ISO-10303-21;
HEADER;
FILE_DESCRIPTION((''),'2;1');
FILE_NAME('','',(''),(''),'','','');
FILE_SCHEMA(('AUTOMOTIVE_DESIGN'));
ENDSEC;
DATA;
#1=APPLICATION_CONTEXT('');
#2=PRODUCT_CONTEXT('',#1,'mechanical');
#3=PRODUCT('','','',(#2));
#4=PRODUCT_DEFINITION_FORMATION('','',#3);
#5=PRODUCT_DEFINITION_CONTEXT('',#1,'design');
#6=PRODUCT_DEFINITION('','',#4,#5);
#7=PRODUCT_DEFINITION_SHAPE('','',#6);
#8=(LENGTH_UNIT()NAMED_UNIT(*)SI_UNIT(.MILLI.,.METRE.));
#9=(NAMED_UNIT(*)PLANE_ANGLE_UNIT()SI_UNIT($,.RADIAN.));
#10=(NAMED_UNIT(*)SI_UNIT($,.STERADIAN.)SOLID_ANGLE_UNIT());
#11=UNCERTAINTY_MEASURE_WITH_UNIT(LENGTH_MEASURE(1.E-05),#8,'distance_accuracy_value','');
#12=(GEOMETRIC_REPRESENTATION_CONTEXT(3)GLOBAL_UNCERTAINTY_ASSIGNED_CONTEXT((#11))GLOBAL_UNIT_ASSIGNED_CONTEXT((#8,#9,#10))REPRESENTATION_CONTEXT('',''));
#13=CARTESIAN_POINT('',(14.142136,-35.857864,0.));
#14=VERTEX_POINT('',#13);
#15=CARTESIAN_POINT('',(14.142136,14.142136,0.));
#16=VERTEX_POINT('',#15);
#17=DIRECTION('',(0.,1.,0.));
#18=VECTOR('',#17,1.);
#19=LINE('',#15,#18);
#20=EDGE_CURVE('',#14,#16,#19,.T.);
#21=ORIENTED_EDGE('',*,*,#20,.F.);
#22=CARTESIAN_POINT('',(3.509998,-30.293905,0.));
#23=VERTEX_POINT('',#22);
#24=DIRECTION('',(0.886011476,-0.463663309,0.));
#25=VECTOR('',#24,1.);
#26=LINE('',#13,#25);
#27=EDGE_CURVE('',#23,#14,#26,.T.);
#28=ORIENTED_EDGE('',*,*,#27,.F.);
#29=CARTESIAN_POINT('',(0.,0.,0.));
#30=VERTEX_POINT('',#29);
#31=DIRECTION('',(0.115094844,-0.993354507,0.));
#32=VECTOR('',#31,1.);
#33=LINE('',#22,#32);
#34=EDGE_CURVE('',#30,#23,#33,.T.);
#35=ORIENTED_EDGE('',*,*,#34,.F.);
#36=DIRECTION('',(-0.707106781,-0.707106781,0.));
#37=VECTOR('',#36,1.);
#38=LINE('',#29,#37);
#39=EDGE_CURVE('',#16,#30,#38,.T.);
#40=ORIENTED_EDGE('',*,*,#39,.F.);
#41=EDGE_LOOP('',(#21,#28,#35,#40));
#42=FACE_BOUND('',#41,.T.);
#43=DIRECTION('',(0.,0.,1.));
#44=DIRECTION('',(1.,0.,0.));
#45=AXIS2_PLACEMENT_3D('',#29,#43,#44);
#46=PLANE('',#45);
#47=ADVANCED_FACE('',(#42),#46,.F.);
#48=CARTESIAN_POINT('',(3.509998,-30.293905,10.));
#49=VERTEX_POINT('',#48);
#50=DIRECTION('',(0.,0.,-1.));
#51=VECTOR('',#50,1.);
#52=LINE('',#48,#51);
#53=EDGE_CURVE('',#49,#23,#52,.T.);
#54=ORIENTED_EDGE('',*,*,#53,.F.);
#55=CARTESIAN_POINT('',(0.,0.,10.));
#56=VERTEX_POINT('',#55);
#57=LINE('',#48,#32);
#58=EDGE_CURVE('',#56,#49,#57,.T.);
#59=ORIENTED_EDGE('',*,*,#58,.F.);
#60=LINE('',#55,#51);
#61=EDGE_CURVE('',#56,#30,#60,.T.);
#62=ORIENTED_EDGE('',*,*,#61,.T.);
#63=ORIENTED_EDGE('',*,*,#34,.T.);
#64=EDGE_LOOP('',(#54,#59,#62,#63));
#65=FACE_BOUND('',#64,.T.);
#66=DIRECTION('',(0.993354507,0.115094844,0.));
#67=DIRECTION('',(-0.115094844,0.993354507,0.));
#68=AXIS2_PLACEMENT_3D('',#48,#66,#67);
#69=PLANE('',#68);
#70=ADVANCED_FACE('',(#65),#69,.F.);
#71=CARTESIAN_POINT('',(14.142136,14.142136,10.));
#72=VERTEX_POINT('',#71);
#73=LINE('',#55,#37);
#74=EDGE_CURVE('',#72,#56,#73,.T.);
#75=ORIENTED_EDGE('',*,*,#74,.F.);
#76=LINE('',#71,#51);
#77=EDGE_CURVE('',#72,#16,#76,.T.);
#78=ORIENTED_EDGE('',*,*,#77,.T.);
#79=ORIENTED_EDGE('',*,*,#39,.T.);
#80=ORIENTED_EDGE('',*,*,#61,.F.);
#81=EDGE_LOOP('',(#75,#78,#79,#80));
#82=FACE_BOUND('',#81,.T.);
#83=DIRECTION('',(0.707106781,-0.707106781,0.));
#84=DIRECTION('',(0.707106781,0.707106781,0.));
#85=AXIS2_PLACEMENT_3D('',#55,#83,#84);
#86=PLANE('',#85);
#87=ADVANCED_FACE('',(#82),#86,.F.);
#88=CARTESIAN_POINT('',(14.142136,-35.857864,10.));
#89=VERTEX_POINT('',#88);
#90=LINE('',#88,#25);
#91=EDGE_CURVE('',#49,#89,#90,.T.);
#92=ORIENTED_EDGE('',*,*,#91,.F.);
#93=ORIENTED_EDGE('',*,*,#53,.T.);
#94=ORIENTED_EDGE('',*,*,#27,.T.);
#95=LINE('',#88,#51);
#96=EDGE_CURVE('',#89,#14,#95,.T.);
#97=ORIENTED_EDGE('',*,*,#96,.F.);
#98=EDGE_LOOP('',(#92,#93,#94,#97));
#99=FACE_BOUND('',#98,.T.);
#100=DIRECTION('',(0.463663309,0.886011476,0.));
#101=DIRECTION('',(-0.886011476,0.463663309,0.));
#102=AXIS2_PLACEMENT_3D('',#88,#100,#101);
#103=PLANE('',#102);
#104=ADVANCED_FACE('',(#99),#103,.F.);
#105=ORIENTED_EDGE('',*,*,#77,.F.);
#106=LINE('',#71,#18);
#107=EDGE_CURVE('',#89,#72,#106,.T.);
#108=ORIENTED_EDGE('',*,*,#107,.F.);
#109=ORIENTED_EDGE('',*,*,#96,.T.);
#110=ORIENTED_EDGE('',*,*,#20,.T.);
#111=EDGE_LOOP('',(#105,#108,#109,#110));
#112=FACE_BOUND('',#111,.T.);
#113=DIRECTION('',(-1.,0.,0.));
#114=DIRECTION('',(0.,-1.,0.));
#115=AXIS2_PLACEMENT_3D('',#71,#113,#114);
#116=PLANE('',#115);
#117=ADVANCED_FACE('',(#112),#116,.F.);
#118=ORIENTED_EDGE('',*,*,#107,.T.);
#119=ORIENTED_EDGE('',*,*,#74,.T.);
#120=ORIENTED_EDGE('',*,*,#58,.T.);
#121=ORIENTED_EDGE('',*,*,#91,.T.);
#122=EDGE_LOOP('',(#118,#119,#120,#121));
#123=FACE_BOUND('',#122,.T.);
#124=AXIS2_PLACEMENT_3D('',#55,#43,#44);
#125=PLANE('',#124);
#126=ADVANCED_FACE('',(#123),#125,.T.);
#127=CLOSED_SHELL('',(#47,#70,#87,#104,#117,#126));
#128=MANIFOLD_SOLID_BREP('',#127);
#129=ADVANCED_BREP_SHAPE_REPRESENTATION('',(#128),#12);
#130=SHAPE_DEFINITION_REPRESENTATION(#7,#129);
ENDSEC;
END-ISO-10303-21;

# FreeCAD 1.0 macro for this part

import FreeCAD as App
import Part
import Sketcher
from FreeCAD import Vector
Q = App.Units.Quantity

doc = App.newDocument("Part")
body = doc.addObject("PartDesign::Body", "Body")

# Sketch on XY plane
sketch1 = doc.addObject("Sketcher::SketchObject", "Sketch")
body.addObject(sketch1)
sketch1.AttachmentSupport = (doc.XY_Plane, [""])
sketch1.MapMode = "FlatFace"
sketch1.addGeometry(Part.LineSegment(Vector(14.142136, 14.142136, 0), Vector(0, 0, 0)), False)
sketch1.addGeometry(Part.LineSegment(Vector(0, 0, 0), Vector(3.509998, -30.293905, 0)), False)
sketch1.addGeometry(Part.LineSegment(Vector(3.509998, -30.293905, 0), Vector(14.142136, -35.857864, 0)), False)
sketch1.addGeometry(Part.LineSegment(Vector(14.142136, -35.857864, 0), Vector(14.142136, 14.142136, 0)), False)
sketch1.addConstraint(Sketcher.Constraint("Coincident", 0, 2, 1, 1))
sketch1.addConstraint(Sketcher.Constraint("Coincident", 1, 2, 2, 1))
sketch1.addConstraint(Sketcher.Constraint("Coincident", 2, 2, 3, 1))
sketch1.addConstraint(Sketcher.Constraint("Coincident", 3, 2, 0, 1))
sketch1.addConstraint(Sketcher.Constraint("Vertical", 3))
sketch1.addConstraint(Sketcher.Constraint("Coincident", 0, 2, -1, 1))
sketch1.addConstraint(Sketcher.Constraint("DistanceY", 3, 1, 3, 2, 50.0))
sketch1.addConstraint(Sketcher.Constraint("Angle", 0, Q("-135 deg")))
sketch1.addConstraint(Sketcher.Constraint("Distance", 0, 20.0))
sketch1.addConstraint(Sketcher.Constraint("Distance", 2, 12.0))
sketch1.addConstraint(Sketcher.Constraint("Distance", 1, 30.496569))
pad1 = doc.addObject("PartDesign::Pad", "Pad")
body.addObject(pad1)
pad1.Profile = sketch1
pad1.Length = 10

doc.recompute()
